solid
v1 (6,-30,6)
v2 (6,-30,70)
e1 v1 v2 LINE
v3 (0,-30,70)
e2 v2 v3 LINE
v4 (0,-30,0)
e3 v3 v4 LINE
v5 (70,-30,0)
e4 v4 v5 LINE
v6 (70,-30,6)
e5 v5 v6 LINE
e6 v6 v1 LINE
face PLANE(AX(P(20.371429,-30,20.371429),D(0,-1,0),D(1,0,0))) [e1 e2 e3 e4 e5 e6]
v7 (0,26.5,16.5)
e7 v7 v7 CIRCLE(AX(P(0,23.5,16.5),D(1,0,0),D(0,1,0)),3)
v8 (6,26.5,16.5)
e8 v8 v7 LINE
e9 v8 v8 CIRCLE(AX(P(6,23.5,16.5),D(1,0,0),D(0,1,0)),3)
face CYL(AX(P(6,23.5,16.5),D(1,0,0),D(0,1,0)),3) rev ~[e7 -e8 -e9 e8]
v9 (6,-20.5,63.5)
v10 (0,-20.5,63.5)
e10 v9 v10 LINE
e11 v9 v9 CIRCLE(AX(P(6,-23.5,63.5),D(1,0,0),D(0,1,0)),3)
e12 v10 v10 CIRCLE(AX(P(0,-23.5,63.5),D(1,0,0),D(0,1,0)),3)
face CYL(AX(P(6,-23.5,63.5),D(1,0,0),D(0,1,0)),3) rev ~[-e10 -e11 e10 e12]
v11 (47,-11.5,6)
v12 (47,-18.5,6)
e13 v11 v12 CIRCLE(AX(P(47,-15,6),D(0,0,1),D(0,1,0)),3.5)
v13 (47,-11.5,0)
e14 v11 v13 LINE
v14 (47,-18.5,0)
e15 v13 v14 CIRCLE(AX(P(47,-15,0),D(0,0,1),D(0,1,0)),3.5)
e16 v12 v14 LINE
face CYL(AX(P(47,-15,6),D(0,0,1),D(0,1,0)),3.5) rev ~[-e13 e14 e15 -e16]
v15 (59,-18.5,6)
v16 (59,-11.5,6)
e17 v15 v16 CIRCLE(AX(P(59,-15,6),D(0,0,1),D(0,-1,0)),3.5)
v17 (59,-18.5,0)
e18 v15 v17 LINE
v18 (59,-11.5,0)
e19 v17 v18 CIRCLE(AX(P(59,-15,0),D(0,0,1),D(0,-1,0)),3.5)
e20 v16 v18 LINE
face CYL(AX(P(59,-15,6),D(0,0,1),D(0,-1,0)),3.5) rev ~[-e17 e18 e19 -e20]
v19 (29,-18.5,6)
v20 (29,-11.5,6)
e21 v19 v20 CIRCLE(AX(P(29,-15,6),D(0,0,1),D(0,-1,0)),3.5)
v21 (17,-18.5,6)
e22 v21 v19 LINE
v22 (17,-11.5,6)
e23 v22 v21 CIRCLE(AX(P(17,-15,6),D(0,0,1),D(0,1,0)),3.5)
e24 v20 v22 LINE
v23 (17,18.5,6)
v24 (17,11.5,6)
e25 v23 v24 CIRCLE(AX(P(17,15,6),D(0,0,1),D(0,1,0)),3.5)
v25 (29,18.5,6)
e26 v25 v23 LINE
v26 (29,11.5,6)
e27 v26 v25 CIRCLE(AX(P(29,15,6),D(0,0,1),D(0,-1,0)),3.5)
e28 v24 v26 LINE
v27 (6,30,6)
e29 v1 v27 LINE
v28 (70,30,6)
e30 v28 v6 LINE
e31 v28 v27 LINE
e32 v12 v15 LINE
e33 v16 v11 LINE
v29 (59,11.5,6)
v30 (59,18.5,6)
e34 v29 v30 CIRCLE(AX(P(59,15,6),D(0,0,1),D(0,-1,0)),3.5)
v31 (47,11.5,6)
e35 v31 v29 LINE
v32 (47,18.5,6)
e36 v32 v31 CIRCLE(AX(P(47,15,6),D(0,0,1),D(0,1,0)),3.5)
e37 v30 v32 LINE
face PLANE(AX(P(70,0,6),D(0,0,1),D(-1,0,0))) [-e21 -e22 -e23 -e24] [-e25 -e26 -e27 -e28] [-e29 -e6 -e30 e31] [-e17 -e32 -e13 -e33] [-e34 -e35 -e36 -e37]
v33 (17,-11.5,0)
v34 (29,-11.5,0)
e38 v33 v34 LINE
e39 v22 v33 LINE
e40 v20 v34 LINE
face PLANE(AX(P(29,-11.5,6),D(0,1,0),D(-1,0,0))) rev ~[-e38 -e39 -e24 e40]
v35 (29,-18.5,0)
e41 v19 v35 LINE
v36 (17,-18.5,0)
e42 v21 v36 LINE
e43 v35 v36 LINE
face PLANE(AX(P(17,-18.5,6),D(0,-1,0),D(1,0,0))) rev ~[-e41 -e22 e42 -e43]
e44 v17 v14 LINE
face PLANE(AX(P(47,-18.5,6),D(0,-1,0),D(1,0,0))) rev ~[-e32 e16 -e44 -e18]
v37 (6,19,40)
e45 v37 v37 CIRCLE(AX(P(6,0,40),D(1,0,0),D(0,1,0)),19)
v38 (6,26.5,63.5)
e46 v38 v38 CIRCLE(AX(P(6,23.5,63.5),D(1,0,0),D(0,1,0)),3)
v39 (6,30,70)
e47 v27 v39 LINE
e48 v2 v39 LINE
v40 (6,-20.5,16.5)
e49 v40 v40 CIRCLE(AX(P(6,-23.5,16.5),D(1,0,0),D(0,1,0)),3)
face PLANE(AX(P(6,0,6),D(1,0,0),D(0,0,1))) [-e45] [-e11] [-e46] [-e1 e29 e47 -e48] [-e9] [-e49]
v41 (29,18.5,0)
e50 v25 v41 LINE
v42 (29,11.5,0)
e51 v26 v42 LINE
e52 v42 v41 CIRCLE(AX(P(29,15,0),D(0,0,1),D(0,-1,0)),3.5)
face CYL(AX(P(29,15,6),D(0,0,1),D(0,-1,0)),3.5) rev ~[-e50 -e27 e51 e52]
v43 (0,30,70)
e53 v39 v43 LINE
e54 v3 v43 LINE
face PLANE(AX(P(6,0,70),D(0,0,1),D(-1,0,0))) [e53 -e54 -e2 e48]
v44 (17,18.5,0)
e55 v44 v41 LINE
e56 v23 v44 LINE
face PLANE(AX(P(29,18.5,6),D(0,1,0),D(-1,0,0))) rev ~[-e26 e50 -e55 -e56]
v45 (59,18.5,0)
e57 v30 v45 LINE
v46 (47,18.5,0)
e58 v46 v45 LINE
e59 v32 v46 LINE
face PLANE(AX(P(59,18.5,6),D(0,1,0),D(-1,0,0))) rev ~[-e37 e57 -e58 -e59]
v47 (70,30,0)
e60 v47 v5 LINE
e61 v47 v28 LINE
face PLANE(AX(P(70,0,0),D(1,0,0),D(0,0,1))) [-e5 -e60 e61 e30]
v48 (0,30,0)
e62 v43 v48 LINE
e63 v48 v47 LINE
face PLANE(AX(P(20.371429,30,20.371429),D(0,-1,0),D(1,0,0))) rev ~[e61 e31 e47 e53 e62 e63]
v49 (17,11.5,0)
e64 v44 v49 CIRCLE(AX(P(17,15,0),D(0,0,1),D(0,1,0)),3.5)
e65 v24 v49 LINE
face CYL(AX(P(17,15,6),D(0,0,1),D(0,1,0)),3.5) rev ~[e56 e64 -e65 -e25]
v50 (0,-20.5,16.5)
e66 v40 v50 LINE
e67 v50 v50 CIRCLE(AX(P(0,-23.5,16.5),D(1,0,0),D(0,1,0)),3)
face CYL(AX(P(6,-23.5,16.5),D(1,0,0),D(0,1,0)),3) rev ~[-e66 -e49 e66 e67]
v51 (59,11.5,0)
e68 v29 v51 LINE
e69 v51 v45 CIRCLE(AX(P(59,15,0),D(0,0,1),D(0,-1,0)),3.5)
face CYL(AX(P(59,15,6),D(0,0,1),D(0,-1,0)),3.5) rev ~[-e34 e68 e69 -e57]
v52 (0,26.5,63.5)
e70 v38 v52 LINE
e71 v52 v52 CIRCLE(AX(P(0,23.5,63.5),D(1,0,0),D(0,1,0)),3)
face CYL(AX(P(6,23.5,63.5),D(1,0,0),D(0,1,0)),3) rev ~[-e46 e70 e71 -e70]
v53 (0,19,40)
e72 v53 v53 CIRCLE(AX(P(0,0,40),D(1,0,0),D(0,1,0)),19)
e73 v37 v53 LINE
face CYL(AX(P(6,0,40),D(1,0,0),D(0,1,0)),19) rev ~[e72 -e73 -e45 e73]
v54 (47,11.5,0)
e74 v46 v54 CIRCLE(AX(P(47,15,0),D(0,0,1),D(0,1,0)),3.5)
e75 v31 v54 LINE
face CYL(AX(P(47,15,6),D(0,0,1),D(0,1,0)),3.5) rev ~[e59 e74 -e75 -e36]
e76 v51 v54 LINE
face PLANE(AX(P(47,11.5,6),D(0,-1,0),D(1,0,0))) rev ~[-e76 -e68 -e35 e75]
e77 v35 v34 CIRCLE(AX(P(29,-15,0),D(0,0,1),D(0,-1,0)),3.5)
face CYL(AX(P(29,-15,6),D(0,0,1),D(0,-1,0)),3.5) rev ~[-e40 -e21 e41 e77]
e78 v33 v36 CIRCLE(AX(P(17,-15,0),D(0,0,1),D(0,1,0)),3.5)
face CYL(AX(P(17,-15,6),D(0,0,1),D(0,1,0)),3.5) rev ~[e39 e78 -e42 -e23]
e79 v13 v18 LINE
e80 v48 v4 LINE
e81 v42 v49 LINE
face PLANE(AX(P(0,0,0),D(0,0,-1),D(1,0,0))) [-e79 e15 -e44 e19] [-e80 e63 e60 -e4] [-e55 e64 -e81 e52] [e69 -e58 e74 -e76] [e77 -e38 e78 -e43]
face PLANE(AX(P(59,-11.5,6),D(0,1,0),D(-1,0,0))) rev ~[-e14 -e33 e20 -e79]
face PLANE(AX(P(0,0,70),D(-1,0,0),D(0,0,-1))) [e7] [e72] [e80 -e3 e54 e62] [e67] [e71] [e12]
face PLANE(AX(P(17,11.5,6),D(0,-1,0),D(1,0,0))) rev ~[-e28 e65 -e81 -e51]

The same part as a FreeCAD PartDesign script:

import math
import FreeCAD as App
import Part
import Sketcher

V = App.Vector


def add_polygon(sketch, points):
    """Adds a closed chain of lines whose ends are joined by coincident constraints."""
    first, n = sketch.GeometryCount, len(points)
    for a, b in zip(points, points[1:] + points[:1]):
        sketch.addGeometry(Part.LineSegment(App.Vector(*a, 0), App.Vector(*b, 0)), False)
    for i in range(n):
        sketch.addConstraint(Sketcher.Constraint("Coincident", first + i, 2, first + (i + 1) % n, 1))

doc = App.newDocument("Part")
body = doc.addObject("PartDesign::Body", "Body")

# Sketch on XZ plane
sketch1 = body.newObject("Sketcher::SketchObject", "Sketch")
sketch1.AttachmentSupport = (doc.getObject("XZ_Plane"), [""])
sketch1.MapMode = "FlatFace"
add_polygon(sketch1, [(0, 70), (0, 0), (70, 0), (70, 6), (6, 6), (6, 70)])  # lines 0-5
sketch1.addConstraint(Sketcher.Constraint("Vertical", 0))
sketch1.addConstraint(Sketcher.Constraint("Horizontal", 1))
sketch1.addConstraint(Sketcher.Constraint("Vertical", 2))
sketch1.addConstraint(Sketcher.Constraint("Horizontal", 3))
sketch1.addConstraint(Sketcher.Constraint("Vertical", 4))
sketch1.addConstraint(Sketcher.Constraint("Horizontal", 5))
sketch1.addConstraint(Sketcher.Constraint("Coincident", 0, 2, -1, 1))
sketch1.addConstraint(Sketcher.Constraint("Equal", 1, 0))
sketch1.addConstraint(Sketcher.Constraint("Equal", 5, 2))
sketch1.addConstraint(Sketcher.Constraint("DistanceX", 1, 1, 1, 2, 70.0))
sketch1.addConstraint(Sketcher.Constraint("DistanceX", 3, 2, 3, 1, 64.0))
pad1 = body.newObject("PartDesign::Pad", "Pad")
pad1.Profile = sketch1
pad1.Type = "TwoLengths"
pad1.Length = 30
pad1.Length2 = 30

# Sketch on YZ plane
sketch2 = body.newObject("Sketcher::SketchObject", "Sketch001")
sketch2.AttachmentSupport = (doc.getObject("YZ_Plane"), [""])
sketch2.MapMode = "FlatFace"
sketch2.AttachmentOffset = App.Placement(V(0, 0, 6), App.Rotation())
sketch2.addGeometry(Part.Circle(V(0, 40, 0), V(0, 0, 1), 19), False)
sketch2.addGeometry(Part.Circle(V(-23.5, 63.5, 0), V(0, 0, 1), 3), False)
sketch2.addGeometry(Part.Circle(V(-23.5, 16.5, 0), V(0, 0, 1), 3), False)
sketch2.addGeometry(Part.Circle(V(23.5, 16.5, 0), V(0, 0, 1), 3), False)
sketch2.addGeometry(Part.Circle(V(23.5, 63.5, 0), V(0, 0, 1), 3), False)
sketch2.addConstraint(Sketcher.Constraint("Equal", 1, 2))
sketch2.addConstraint(Sketcher.Constraint("Equal", 2, 3))
sketch2.addConstraint(Sketcher.Constraint("Equal", 3, 4))
sketch2.addConstraint(Sketcher.Constraint("Symmetric", 2, 3, 3, 3, -2))
sketch2.addConstraint(Sketcher.Constraint("Symmetric", 1, 3, 4, 3, -2))
sketch2.addConstraint(Sketcher.Constraint("PointOnObject", 0, 3, -2))
sketch2.addConstraint(Sketcher.Constraint("Vertical", 1, 3, 2, 3))
sketch2.addConstraint(Sketcher.Constraint("Diameter", 0, 38.0))
sketch2.addConstraint(Sketcher.Constraint("Diameter", 1, 6.0))
sketch2.addConstraint(Sketcher.Constraint("DistanceY", -1, 1, 0, 3, 40.0))
sketch2.addConstraint(Sketcher.Constraint("DistanceY", 2, 3, 1, 3, 47.0))
sketch2.addConstraint(Sketcher.Constraint("DistanceX", 2, 3, 3, 3, 47.0))
sketch2.addConstraint(Sketcher.Constraint("DistanceY", -1, 1, 1, 3, 63.5))
pocket1 = body.newObject("PartDesign::Pocket", "Pocket")
pocket1.Profile = sketch2
pocket1.Type = "ThroughAll"

# Sketch on XY plane
sketch3 = body.newObject("Sketcher::SketchObject", "Sketch002")
sketch3.AttachmentSupport = (doc.getObject("XY_Plane"), [""])
sketch3.MapMode = "FlatFace"
sketch3.AttachmentOffset = App.Placement(V(0, 0, 6), App.Rotation())
sketch3.addGeometry(Part.ArcOfCircle(Part.Circle(V(29, -15, 0), V(0, 0, 1), 3.5), math.radians(-90), math.radians(90)), False)
sketch3.addGeometry(Part.LineSegment(V(29, -11.5, 0), V(17, -11.5, 0)), False)
sketch3.addGeometry(Part.ArcOfCircle(Part.Circle(V(17, -15, 0), V(0, 0, 1), 3.5), math.radians(90), math.radians(270)), False)
sketch3.addGeometry(Part.LineSegment(V(17, -18.5, 0), V(29, -18.5, 0)), False)
sketch3.addGeometry(Part.ArcOfCircle(Part.Circle(V(59, -15, 0), V(0, 0, 1), 3.5), math.radians(-90), math.radians(90)), False)
sketch3.addGeometry(Part.LineSegment(V(59, -11.5, 0), V(47, -11.5, 0)), False)
sketch3.addGeometry(Part.ArcOfCircle(Part.Circle(V(47, -15, 0), V(0, 0, 1), 3.5), math.radians(90), math.radians(270)), False)
sketch3.addGeometry(Part.LineSegment(V(47, -18.5, 0), V(59, -18.5, 0)), False)
sketch3.addGeometry(Part.LineSegment(V(47, 11.5, 0), V(59, 11.5, 0)), False)
sketch3.addGeometry(Part.ArcOfCircle(Part.Circle(V(59, 15, 0), V(0, 0, 1), 3.5), math.radians(-90), math.radians(90)), False)
sketch3.addGeometry(Part.LineSegment(V(59, 18.5, 0), V(47, 18.5, 0)), False)
sketch3.addGeometry(Part.ArcOfCircle(Part.Circle(V(47, 15, 0), V(0, 0, 1), 3.5), math.radians(90), math.radians(270)), False)
sketch3.addGeometry(Part.ArcOfCircle(Part.Circle(V(29, 15, 0), V(0, 0, 1), 3.5), math.radians(-90), math.radians(90)), False)
sketch3.addGeometry(Part.LineSegment(V(29, 18.5, 0), V(17, 18.5, 0)), False)
sketch3.addGeometry(Part.ArcOfCircle(Part.Circle(V(17, 15, 0), V(0, 0, 1), 3.5), math.radians(90), math.radians(270)), False)
sketch3.addGeometry(Part.LineSegment(V(17, 11.5, 0), V(29, 11.5, 0)), False)
sketch3.addConstraint(Sketcher.Constraint("Tangent", 0, 2, 1, 1))
sketch3.addConstraint(Sketcher.Constraint("Tangent", 1, 2, 2, 1))
sketch3.addConstraint(Sketcher.Constraint("Tangent", 2, 2, 3, 1))
sketch3.addConstraint(Sketcher.Constraint("Tangent", 3, 2, 0, 1))
sketch3.addConstraint(Sketcher.Constraint("Tangent", 4, 2, 5, 1))
sketch3.addConstraint(Sketcher.Constraint("Tangent", 5, 2, 6, 1))
sketch3.addConstraint(Sketcher.Constraint("Tangent", 6, 2, 7, 1))
sketch3.addConstraint(Sketcher.Constraint("Tangent", 7, 2, 4, 1))
sketch3.addConstraint(Sketcher.Constraint("Tangent", 8, 2, 9, 1))
sketch3.addConstraint(Sketcher.Constraint("Tangent", 9, 2, 10, 1))
sketch3.addConstraint(Sketcher.Constraint("Tangent", 10, 2, 11, 1))
sketch3.addConstraint(Sketcher.Constraint("Tangent", 11, 2, 8, 1))
sketch3.addConstraint(Sketcher.Constraint("Tangent", 12, 2, 13, 1))
sketch3.addConstraint(Sketcher.Constraint("Tangent", 13, 2, 14, 1))
sketch3.addConstraint(Sketcher.Constraint("Tangent", 14, 2, 15, 1))
sketch3.addConstraint(Sketcher.Constraint("Tangent", 15, 2, 12, 1))
sketch3.addConstraint(Sketcher.Constraint("Horizontal", 1))
sketch3.addConstraint(Sketcher.Constraint("Horizontal", 3))
sketch3.addConstraint(Sketcher.Constraint("Horizontal", 5))
sketch3.addConstraint(Sketcher.Constraint("Horizontal", 7))
sketch3.addConstraint(Sketcher.Constraint("Horizontal", 8))
sketch3.addConstraint(Sketcher.Constraint("Horizontal", 10))
sketch3.addConstraint(Sketcher.Constraint("Horizontal", 13))
sketch3.addConstraint(Sketcher.Constraint("Horizontal", 15))
sketch3.addConstraint(Sketcher.Constraint("Equal", 2, 4))
sketch3.addConstraint(Sketcher.Constraint("Equal", 6, 9))
sketch3.addConstraint(Sketcher.Constraint("Equal", 11, 12))
sketch3.addConstraint(Sketcher.Constraint("Symmetric", 4, 3, 9, 3, -1))
sketch3.addConstraint(Sketcher.Constraint("Symmetric", 0, 3, 12, 3, -1))
sketch3.addConstraint(Sketcher.Constraint("Horizontal", 2, 3, 4, 3))
sketch3.addConstraint(Sketcher.Constraint("Vertical", 6, 3, 11, 3))
sketch3.addConstraint(Sketcher.Constraint("Vertical", 2, 3, 14, 3))
sketch3.addConstraint(Sketcher.Constraint("Equal", 3, 5))
sketch3.addConstraint(Sketcher.Constraint("Radius", 0, 3.5))
sketch3.addConstraint(Sketcher.Constraint("DistanceX", 1, 2, 1, 1, 12.0))
sketch3.addConstraint(Sketcher.Constraint("DistanceX", -1, 1, 0, 3, 29.0))
sketch3.addConstraint(Sketcher.Constraint("DistanceY", 0, 3, -1, 1, 15.0))
sketch3.addConstraint(Sketcher.Constraint("DistanceX", -1, 1, 4, 3, 59.0))
pocket2 = body.newObject("PartDesign::Pocket", "Pocket001")
pocket2.Profile = sketch3
pocket2.Length = 25

doc.recompute()
